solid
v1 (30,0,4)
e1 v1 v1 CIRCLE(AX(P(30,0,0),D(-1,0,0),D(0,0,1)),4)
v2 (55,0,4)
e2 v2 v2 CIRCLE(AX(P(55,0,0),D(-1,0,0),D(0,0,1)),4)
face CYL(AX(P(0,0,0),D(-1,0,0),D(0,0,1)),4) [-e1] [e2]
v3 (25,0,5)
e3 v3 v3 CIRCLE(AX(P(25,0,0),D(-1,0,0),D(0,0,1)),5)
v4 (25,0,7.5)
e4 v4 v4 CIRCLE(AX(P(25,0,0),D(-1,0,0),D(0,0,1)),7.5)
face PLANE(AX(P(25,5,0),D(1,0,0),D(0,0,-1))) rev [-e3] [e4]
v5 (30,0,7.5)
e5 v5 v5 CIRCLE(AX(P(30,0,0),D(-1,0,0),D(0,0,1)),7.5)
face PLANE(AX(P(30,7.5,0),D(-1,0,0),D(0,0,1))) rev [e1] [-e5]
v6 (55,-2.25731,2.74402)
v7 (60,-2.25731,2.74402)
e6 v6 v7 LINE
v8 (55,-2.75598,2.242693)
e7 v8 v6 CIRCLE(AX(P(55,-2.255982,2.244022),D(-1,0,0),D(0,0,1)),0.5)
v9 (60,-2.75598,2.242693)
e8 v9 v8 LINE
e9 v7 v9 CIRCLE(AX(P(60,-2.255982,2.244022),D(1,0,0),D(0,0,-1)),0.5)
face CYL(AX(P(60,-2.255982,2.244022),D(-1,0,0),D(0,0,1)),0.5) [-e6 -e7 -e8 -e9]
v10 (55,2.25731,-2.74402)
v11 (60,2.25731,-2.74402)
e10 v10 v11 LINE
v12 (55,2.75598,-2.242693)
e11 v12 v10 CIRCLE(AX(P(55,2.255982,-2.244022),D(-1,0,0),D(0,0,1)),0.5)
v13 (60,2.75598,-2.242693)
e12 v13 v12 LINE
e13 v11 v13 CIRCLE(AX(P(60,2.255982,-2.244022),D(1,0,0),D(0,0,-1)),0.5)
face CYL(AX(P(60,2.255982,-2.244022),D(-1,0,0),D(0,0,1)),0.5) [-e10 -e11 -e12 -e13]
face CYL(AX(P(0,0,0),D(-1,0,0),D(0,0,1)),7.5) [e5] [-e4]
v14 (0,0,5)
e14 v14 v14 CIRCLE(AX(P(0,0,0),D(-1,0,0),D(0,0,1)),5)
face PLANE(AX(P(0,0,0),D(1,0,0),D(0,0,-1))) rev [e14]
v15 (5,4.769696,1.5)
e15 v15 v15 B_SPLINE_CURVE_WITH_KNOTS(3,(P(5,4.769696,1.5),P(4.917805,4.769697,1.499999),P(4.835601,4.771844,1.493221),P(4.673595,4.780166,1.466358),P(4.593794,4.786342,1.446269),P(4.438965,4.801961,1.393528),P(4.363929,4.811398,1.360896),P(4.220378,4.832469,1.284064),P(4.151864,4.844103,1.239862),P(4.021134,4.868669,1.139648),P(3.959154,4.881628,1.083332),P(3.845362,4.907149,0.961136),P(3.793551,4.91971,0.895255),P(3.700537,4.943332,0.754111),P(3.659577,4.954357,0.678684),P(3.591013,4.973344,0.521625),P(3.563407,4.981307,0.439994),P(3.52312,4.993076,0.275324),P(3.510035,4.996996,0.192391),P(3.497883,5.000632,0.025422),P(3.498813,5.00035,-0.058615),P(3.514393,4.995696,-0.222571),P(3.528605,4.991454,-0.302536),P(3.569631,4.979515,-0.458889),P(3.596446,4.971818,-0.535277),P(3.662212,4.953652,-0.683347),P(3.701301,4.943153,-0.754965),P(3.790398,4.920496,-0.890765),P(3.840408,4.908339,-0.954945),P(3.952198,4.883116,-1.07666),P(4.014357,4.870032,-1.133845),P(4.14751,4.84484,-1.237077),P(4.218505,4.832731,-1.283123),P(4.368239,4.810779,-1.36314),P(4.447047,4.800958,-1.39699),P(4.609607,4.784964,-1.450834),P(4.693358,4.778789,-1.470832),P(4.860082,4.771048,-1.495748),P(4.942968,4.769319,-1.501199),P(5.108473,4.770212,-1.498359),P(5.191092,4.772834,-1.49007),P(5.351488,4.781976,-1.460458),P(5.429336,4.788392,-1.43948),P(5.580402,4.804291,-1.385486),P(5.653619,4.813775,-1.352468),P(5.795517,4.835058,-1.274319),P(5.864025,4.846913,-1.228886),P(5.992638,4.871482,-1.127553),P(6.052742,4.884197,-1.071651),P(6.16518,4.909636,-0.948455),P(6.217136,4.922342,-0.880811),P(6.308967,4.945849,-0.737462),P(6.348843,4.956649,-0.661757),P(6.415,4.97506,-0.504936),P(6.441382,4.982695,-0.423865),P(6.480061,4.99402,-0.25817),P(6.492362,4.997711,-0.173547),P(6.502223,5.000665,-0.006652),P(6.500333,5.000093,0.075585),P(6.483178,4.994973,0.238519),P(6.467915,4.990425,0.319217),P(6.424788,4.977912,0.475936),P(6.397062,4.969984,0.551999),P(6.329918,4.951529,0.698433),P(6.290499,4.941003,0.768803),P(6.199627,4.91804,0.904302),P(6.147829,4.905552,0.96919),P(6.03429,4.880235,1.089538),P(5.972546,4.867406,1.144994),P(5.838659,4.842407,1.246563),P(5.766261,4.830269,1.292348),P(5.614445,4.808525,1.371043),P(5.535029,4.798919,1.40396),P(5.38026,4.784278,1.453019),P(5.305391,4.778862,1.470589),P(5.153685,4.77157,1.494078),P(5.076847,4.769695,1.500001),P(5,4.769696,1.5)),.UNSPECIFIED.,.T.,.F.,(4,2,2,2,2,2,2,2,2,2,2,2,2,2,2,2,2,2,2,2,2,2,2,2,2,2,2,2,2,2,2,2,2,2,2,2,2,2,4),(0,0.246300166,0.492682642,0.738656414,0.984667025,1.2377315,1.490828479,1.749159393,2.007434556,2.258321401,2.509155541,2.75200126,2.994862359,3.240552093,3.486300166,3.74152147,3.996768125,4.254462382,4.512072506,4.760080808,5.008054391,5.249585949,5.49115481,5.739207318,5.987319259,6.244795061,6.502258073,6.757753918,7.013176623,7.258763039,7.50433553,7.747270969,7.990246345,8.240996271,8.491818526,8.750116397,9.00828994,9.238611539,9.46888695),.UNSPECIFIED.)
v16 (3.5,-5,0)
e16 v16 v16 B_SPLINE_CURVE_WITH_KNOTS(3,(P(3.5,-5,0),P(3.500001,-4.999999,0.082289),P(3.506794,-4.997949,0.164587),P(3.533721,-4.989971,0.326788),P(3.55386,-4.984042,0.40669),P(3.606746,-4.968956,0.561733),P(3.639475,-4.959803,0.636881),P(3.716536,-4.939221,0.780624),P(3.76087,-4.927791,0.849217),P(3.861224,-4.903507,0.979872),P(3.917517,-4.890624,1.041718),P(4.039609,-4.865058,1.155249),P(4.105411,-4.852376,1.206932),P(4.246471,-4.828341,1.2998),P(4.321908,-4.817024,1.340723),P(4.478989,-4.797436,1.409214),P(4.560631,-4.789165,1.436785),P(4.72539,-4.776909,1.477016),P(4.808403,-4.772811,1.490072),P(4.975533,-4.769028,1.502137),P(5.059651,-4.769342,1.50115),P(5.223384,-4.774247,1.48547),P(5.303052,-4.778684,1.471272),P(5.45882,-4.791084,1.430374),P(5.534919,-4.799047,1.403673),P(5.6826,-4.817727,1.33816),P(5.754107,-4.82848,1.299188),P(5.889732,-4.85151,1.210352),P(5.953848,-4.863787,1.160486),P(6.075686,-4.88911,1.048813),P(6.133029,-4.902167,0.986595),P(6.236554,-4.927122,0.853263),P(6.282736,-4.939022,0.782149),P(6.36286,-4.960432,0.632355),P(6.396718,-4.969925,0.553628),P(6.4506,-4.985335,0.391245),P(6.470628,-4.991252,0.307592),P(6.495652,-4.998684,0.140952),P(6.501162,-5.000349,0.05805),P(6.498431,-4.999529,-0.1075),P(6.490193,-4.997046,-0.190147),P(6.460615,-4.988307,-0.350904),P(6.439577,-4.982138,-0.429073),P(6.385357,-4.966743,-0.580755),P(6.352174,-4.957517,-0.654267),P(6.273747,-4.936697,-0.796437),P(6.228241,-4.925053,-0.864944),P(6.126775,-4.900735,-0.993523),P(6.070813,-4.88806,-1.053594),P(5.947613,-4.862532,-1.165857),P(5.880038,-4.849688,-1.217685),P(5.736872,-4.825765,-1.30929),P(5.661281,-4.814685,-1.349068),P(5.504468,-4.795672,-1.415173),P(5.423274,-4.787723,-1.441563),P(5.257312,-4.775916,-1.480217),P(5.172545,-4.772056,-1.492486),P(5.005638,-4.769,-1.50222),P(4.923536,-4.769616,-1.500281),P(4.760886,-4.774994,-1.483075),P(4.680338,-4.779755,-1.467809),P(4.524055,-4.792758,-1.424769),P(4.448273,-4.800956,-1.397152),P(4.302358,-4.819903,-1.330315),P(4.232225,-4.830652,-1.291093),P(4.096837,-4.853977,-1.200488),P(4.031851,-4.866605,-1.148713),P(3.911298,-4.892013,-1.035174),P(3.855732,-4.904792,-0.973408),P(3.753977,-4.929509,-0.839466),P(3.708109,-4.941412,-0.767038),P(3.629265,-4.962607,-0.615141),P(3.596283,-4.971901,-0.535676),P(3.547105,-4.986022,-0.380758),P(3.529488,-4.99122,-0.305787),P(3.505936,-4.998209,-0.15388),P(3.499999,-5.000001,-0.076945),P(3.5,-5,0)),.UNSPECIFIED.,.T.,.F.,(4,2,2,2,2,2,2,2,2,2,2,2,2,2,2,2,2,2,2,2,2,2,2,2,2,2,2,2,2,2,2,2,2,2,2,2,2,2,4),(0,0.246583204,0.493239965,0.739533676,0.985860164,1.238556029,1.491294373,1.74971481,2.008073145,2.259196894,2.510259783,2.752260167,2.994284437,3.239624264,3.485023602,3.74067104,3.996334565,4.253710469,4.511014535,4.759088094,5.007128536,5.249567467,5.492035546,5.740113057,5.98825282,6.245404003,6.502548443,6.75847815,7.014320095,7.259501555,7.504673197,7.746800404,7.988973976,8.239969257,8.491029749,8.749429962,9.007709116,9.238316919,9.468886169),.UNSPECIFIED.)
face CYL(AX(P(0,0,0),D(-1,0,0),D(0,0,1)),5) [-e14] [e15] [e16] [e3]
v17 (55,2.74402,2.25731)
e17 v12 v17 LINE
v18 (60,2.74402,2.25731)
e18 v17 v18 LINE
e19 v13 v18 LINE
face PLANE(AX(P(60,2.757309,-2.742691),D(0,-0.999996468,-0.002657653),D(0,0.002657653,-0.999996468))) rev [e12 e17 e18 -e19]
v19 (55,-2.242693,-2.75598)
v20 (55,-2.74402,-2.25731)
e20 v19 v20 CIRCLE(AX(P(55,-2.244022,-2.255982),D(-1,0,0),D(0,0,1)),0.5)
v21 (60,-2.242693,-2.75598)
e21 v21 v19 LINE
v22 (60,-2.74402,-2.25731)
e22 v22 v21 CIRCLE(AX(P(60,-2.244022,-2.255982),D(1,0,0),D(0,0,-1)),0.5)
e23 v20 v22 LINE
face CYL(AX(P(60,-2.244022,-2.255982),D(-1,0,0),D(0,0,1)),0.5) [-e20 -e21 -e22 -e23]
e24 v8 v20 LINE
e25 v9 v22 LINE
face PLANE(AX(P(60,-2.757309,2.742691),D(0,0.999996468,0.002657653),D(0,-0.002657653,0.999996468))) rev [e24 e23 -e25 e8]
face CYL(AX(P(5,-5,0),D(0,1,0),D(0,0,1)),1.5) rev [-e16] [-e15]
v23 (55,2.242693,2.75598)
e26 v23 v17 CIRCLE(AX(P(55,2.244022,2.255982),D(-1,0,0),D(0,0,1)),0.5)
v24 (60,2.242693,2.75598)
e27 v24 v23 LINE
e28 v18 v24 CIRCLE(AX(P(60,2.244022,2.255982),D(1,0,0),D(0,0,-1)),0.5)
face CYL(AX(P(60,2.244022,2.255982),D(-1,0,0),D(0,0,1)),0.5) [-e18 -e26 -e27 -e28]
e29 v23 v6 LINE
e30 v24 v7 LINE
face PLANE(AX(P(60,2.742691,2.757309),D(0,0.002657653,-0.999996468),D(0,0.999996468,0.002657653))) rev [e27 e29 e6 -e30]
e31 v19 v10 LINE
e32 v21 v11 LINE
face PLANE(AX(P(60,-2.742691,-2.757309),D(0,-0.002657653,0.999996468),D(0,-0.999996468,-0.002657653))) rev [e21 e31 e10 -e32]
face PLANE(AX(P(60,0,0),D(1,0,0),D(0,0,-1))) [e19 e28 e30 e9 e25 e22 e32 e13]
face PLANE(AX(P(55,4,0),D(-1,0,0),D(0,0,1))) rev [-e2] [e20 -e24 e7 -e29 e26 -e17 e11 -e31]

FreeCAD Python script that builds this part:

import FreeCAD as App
import Part
import Sketcher

V = App.Vector


def edges_at(feature, points):
    """Names of the edges that pass closest to the given points."""
    edges = feature.Shape.Edges
    near = lambda p: min(range(len(edges)), key=lambda i: edges[i].distToShape(Part.Vertex(*p))[0])
    return sorted({f"Edge{near(p) + 1}" for p in points})

doc = App.newDocument("Part")
params = doc.addObject("Spreadsheet::Sheet", "Params")
for row, (alias, value) in enumerate([
    ("sketch1_width", "55 mm"),
    ("sketch1_width2", "25 mm"),
    ("sketch1_height", "4 mm"),
    ("sketch1_height2", "3.5 mm"),
    ("revolution_angle", "360 deg"),
    ("sketch2_diameter", "3 mm"),
    ("pocket1_length", "10 mm"),
    ("pad1_length", "5 mm"),
    ("fillet_radius", "0.5 mm"),
], start=1):
    params.set(f"A{row}", alias)
    params.set(f"B{row}", "=" + value)
    params.setAlias(f"B{row}", alias)

body = doc.addObject("PartDesign::Body", "Body")

sketch1 = body.newObject("Sketcher::SketchObject", "Sketch")
sketch1.AttachmentSupport = (doc.getObject("XY_Plane"), [""])
sketch1.MapMode = "FlatFace"
sketch1.addGeometry([
    Part.LineSegment(V(0, 5, 0), V(0, 0, 0)),
    Part.LineSegment(V(0, 0, 0), V(55, 0, 0)),
    Part.LineSegment(V(55, 0, 0), V(55, 4, 0)),
    Part.LineSegment(V(55, 4, 0), V(30, 4, 0)),
    Part.LineSegment(V(30, 4, 0), V(30, 7.5, 0)),
    Part.LineSegment(V(30, 7.5, 0), V(25, 7.5, 0)),
    Part.LineSegment(V(25, 7.5, 0), V(25, 5, 0)),
    Part.LineSegment(V(25, 5, 0), V(0, 5, 0)),
], False)
sketch1.addConstraint([
    Sketcher.Constraint("Coincident", 0, 2, 1, 1),
    Sketcher.Constraint("Coincident", 1, 2, 2, 1),
    Sketcher.Constraint("Coincident", 2, 2, 3, 1),
    Sketcher.Constraint("Coincident", 3, 2, 4, 1),
    Sketcher.Constraint("Coincident", 4, 2, 5, 1),
    Sketcher.Constraint("Coincident", 5, 2, 6, 1),
    Sketcher.Constraint("Coincident", 6, 2, 7, 1),
    Sketcher.Constraint("Coincident", 7, 2, 0, 1),
    Sketcher.Constraint("Vertical", 0),
    Sketcher.Constraint("Horizontal", 1),
    Sketcher.Constraint("Vertical", 2),
    Sketcher.Constraint("Horizontal", 3),
    Sketcher.Constraint("Vertical", 4),
    Sketcher.Constraint("Horizontal", 5),
    Sketcher.Constraint("Vertical", 6),
    Sketcher.Constraint("Horizontal", 7),
    Sketcher.Constraint("Coincident", 0, 2, -1, 1),
    Sketcher.Constraint("Equal", 3, 7),
    Sketcher.Constraint("Equal", 5, 0),
    Sketcher.Constraint("DistanceX", 1, 1, 1, 2, 55.0),
    Sketcher.Constraint("DistanceX", 3, 2, 3, 1, 25.0),
    Sketcher.Constraint("DistanceY", 2, 1, 2, 2, 4.0),
    Sketcher.Constraint("DistanceY", 4, 1, 4, 2, 3.5),
])
sketch1.setExpression("Constraints[19]", "Params.sketch1_width")
sketch1.setExpression("Constraints[20]", "Params.sketch1_width2")
sketch1.setExpression("Constraints[21]", "Params.sketch1_height")
sketch1.setExpression("Constraints[22]", "Params.sketch1_height2")
revolution = body.newObject("PartDesign::Revolution", "Revolution")
revolution.Profile = sketch1
revolution.ReferenceAxis = (sketch1, ["H_Axis"])
revolution.setExpression("Angle", "Params.revolution_angle")

sketch2 = body.newObject("Sketcher::SketchObject", "Sketch001")
sketch2.AttachmentSupport = (doc.getObject("XZ_Plane"), [""])
sketch2.MapMode = "FlatFace"
sketch2.addGeometry(Part.Circle(V(5, 0, 0), V(0, 0, 1), 1.5), False)
sketch2.addConstraint([
    Sketcher.Constraint("PointOnObject", 0, 3, -1),
    Sketcher.Constraint("Diameter", 0, 3.0),
    Sketcher.Constraint("DistanceX", -1, 1, 0, 3, 5.0),
])
sketch2.setExpression("Constraints[1]", "Params.sketch2_diameter")
pocket1 = body.newObject("PartDesign::Pocket", "Pocket")
pocket1.Profile = sketch2
pocket1.setExpression("Length", "Params.pocket1_length")
pocket1.Midplane = True

sketch3 = body.newObject("Sketcher::SketchObject", "Sketch002")
sketch3.AttachmentSupport = (doc.getObject("YZ_Plane"), [""])
sketch3.MapMode = "FlatFace"
sketch3.AttachmentOffset = App.Placement(V(0, 0, 55), App.Rotation())
sketch3.addGeometry([
    Part.LineSegment(V(2.742691, 2.757309, 0), V(-2.757309, 2.742691, 0)),
    Part.LineSegment(V(-2.757309, 2.742691, 0), V(-2.742691, -2.757309, 0)),
    Part.LineSegment(V(-2.742691, -2.757309, 0), V(2.757309, -2.742691, 0)),
    Part.LineSegment(V(2.757309, -2.742691, 0), V(2.742691, 2.757309, 0)),
], False)
sketch3.addConstraint([
    Sketcher.Constraint("Coincident", 0, 2, 1, 1),
    Sketcher.Constraint("Coincident", 1, 2, 2, 1),
    Sketcher.Constraint("Coincident", 2, 2, 3, 1),
    Sketcher.Constraint("Coincident", 3, 2, 0, 1),
    Sketcher.Constraint("Symmetric", 0, 2, 2, 2, -1, 1),
    Sketcher.Constraint("Symmetric", 1, 2, 3, 2, -1, 1),
    Sketcher.Constraint("Perpendicular", 0, 1),
    Sketcher.Constraint("Equal", 0, 1),
    Sketcher.Constraint("DistanceY", 1, 2, 0, 2, 5.5),
    Sketcher.Constraint("DistanceX", 0, 2, -1, 1, 2.757309),
])
pad1 = body.newObject("PartDesign::Pad", "Pad")
pad1.Profile = sketch3
pad1.setExpression("Length", "Params.pad1_length")
doc.recompute()

fillet = body.newObject("PartDesign::Fillet", "Fillet")
fillet.Base = (pad1, edges_at(pad1, [
    (57.5, 2.757, -2.743),
    (57.5, 2.743, 2.757),
    (57.5, -2.757, 2.743),
    (57.5, -2.743, -2.757),
]))
fillet.setExpression("Radius", "Params.fillet_radius")

doc.recompute()
